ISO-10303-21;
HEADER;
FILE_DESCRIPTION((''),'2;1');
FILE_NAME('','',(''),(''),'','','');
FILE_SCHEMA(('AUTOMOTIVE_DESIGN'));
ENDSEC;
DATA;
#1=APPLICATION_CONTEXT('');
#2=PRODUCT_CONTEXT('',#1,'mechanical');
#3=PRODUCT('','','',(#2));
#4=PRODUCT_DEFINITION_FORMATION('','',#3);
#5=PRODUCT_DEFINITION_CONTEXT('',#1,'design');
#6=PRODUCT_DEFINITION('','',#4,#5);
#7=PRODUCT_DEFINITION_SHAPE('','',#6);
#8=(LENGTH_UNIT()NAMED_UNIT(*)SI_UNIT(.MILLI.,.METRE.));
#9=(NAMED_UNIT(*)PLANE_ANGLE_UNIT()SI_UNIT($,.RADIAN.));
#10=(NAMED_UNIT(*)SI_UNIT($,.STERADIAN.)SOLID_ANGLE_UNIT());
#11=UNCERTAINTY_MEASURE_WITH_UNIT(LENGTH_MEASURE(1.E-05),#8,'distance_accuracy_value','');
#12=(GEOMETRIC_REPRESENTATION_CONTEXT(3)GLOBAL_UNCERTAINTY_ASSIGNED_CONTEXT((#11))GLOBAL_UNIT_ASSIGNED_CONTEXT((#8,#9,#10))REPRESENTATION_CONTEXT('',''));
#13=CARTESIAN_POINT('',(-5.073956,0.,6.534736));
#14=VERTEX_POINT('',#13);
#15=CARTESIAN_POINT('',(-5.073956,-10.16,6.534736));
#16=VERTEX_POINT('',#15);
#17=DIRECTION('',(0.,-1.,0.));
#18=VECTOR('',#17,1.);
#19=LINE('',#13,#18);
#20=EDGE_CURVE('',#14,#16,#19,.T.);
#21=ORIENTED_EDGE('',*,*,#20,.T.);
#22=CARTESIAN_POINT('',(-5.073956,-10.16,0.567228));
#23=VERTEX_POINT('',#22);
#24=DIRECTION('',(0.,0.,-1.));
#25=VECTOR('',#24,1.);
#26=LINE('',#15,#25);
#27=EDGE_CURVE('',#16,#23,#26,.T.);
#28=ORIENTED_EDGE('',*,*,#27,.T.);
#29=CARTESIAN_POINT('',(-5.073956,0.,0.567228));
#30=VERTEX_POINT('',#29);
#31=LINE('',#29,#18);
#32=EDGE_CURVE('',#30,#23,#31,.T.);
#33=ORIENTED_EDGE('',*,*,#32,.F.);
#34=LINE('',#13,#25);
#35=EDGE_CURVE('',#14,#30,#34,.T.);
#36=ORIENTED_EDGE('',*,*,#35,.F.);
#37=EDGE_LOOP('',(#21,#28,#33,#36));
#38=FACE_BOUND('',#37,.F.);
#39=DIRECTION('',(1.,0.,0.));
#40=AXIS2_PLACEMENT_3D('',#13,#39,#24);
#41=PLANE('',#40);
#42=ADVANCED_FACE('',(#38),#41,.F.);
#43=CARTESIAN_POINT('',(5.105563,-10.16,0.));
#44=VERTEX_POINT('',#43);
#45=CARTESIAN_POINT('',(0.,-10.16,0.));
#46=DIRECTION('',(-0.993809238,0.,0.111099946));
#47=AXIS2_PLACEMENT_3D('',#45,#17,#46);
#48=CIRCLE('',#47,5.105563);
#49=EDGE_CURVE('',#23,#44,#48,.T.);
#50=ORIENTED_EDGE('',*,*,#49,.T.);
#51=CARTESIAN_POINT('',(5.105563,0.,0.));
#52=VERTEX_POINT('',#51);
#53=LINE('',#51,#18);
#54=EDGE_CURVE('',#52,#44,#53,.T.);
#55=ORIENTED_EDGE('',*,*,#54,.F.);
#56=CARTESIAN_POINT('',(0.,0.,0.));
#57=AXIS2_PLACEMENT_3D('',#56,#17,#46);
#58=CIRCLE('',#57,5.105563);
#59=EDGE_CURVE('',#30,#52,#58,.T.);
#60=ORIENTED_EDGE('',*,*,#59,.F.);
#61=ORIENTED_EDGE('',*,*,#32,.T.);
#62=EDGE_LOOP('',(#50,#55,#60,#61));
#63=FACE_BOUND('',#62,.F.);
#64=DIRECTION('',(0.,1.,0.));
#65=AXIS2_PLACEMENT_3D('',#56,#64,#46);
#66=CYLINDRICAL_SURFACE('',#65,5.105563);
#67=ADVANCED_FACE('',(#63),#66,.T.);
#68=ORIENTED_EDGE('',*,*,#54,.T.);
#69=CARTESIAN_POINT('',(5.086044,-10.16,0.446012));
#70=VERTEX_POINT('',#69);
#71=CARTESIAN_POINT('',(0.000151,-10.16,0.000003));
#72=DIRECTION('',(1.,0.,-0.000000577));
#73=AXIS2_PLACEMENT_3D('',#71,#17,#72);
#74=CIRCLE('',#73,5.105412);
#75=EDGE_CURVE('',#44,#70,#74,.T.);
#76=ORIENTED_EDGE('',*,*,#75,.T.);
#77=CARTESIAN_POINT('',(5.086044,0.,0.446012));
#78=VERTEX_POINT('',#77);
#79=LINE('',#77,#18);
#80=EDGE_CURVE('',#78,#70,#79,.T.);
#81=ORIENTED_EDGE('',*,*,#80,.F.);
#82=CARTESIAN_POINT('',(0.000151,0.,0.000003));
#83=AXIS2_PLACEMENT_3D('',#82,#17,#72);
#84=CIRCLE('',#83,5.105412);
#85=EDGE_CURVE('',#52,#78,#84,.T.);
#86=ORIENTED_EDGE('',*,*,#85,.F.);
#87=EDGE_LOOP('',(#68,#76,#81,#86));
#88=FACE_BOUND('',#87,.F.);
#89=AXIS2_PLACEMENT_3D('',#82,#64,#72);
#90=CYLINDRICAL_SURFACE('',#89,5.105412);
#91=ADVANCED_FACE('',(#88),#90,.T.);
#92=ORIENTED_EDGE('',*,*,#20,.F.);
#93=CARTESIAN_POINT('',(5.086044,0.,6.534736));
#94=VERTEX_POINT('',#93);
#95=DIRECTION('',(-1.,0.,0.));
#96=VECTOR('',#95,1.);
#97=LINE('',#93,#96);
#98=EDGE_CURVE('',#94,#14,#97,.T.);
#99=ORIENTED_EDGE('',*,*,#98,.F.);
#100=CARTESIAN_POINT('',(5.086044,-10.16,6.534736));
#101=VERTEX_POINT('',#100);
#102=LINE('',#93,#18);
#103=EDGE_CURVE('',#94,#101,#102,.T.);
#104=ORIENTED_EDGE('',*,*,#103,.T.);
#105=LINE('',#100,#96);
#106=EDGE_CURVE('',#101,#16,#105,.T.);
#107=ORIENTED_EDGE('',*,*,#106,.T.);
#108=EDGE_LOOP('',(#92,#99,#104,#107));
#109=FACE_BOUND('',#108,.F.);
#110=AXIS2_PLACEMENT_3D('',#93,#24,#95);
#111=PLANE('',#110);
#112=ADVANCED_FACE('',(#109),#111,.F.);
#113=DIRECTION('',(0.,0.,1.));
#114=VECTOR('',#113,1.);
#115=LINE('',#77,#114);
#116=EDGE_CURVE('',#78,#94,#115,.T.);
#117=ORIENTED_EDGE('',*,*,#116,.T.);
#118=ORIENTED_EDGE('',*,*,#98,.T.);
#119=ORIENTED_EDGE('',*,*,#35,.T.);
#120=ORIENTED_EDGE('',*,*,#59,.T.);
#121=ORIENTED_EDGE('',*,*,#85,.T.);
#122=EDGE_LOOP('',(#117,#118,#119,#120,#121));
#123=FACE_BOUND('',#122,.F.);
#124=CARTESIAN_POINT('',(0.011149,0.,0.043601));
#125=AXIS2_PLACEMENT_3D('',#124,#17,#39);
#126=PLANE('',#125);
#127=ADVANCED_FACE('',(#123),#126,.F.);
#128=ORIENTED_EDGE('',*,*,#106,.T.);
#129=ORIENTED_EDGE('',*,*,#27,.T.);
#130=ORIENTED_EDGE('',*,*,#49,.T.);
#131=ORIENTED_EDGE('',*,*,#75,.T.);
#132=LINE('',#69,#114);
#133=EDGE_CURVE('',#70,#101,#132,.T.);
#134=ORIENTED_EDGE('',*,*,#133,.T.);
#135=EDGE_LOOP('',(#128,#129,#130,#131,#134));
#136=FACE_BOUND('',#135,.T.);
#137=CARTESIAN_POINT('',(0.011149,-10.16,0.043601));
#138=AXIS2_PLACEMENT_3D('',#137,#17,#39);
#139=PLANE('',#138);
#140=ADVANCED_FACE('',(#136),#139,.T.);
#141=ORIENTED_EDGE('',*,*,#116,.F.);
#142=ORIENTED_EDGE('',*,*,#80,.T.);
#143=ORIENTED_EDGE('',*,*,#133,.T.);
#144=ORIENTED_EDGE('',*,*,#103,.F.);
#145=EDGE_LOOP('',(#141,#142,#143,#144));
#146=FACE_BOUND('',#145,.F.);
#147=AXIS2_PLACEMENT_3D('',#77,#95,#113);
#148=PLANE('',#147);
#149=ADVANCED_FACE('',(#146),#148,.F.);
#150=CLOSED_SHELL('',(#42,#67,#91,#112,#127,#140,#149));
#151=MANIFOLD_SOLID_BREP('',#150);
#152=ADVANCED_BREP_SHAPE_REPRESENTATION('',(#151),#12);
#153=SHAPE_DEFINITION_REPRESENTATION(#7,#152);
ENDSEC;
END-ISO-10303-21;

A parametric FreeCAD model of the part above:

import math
import FreeCAD as App
import Part
import Sketcher
Q = App.Units.Quantity

doc = App.newDocument("Part")
params = doc.addObject("Spreadsheet::Sheet", "Params")
for row, (alias, value) in enumerate([
    ("sketch1_width", "0.4 in"),
    ("pad1_length", "0.4 in"),
    ("pad2_length", "0.4 in"),
], start=1):
    params.set(f"A{row}", alias)
    params.set(f"B{row}", "=" + value)
    params.setAlias(f"B{row}", alias)

body = doc.addObject("PartDesign::Body", "Body")

# Sketch on XZ plane
sketch1 = body.newObject("Sketcher::SketchObject", "Sketch")
sketch1.AttachmentSupport = (doc.getObject("XZ_Plane"), [""])
sketch1.MapMode = "FlatFace"
sketch1.addGeometry([
    Part.LineSegment(App.Vector(5.086044, 6.534736, 0), App.Vector(-5.073956, 6.534736, 0)),
    Part.LineSegment(App.Vector(-5.073956, 6.534736, 0), App.Vector(-5.073956, 0.567228, 0)),
    Part.ArcOfCircle(Part.Circle(App.Vector(0, 0, 0), App.Vector(0, 0, 1), 5.105563), math.radians(5.011632), math.radians(173.621275)),
    Part.LineSegment(App.Vector(5.086044, 0.446012, 0), App.Vector(5.086044, 6.534736, 0)),
], False)
sketch1.addConstraint([
    Sketcher.Constraint("Coincident", 0, 2, 1, 1),
    Sketcher.Constraint("Coincident", 1, 2, 2, 2),
    Sketcher.Constraint("Coincident", 2, 1, 3, 1),
    Sketcher.Constraint("Coincident", 3, 2, 0, 1),
    Sketcher.Constraint("Horizontal", 0),
    Sketcher.Constraint("Vertical", 1),
    Sketcher.Constraint("Vertical", 3),
    Sketcher.Constraint("Coincident", 2, 3, -1, 1),
    Sketcher.Constraint("DistanceX", 0, 2, 0, 1, Q("0.4 in")),
    Sketcher.Constraint("Radius", 2, Q("5.105563 mm")),
    Sketcher.Constraint("DistanceY", 1, 2, 1, 1, Q("5.967508 mm")),
    Sketcher.Constraint("DistanceY", 3, 1, 3, 2, Q("6.088724 mm")),
])
sketch1.setExpression("Constraints[8]", "Params.sketch1_width")
pad1 = body.newObject("PartDesign::Pad", "Pad")
pad1.Profile = sketch1
pad1.setExpression("Length", "Params.pad1_length")

# Sketch on XZ plane
sketch2 = body.newObject("Sketcher::SketchObject", "Sketch001")
sketch2.AttachmentSupport = (doc.getObject("XZ_Plane"), [""])
sketch2.MapMode = "FlatFace"
sketch2.addGeometry([
    Part.ArcOfCircle(Part.Circle(App.Vector(0, 0, 0), App.Vector(0, 0, 1), 5.105563), math.radians(5.011632), math.radians(173.621275)),
    Part.ArcOfCircle(Part.Circle(App.Vector(0, 0, 0), App.Vector(0, 0, 1), 5.105563), math.radians(173.621273), math.radians(359.999998)),
    Part.ArcOfCircle(Part.Circle(App.Vector(0.000151, 0.000003, 0), App.Vector(0, 0, 1), 5.105412), math.radians(-0.000033), math.radians(5.011751)),
], False)
sketch2.addConstraint([
    Sketcher.Constraint("Tangent", 0, 2, 1, 1),
    Sketcher.Constraint("Tangent", 1, 2, 2, 1),
    Sketcher.Constraint("Coincident", 2, 2, 0, 1),
    Sketcher.Constraint("Coincident", 0, 3, -1, 1),
    Sketcher.Constraint("PointOnObject", 1, 2, -1),
    Sketcher.Constraint("DistanceX", 0, 2, 2, 2, Q("0.4 in")),
    Sketcher.Constraint("Radius", 2, Q("5.105412 mm")),
    Sketcher.Constraint("Radius", 0, Q("5.105563 mm")),
    Sketcher.Constraint("DistanceY", -1, 1, 0, 2, Q("0.567228 mm")),
])
pad2 = body.newObject("PartDesign::Pad", "Pad001")
pad2.Profile = sketch2
pad2.setExpression("Length", "Params.pad2_length")

doc.recompute()
